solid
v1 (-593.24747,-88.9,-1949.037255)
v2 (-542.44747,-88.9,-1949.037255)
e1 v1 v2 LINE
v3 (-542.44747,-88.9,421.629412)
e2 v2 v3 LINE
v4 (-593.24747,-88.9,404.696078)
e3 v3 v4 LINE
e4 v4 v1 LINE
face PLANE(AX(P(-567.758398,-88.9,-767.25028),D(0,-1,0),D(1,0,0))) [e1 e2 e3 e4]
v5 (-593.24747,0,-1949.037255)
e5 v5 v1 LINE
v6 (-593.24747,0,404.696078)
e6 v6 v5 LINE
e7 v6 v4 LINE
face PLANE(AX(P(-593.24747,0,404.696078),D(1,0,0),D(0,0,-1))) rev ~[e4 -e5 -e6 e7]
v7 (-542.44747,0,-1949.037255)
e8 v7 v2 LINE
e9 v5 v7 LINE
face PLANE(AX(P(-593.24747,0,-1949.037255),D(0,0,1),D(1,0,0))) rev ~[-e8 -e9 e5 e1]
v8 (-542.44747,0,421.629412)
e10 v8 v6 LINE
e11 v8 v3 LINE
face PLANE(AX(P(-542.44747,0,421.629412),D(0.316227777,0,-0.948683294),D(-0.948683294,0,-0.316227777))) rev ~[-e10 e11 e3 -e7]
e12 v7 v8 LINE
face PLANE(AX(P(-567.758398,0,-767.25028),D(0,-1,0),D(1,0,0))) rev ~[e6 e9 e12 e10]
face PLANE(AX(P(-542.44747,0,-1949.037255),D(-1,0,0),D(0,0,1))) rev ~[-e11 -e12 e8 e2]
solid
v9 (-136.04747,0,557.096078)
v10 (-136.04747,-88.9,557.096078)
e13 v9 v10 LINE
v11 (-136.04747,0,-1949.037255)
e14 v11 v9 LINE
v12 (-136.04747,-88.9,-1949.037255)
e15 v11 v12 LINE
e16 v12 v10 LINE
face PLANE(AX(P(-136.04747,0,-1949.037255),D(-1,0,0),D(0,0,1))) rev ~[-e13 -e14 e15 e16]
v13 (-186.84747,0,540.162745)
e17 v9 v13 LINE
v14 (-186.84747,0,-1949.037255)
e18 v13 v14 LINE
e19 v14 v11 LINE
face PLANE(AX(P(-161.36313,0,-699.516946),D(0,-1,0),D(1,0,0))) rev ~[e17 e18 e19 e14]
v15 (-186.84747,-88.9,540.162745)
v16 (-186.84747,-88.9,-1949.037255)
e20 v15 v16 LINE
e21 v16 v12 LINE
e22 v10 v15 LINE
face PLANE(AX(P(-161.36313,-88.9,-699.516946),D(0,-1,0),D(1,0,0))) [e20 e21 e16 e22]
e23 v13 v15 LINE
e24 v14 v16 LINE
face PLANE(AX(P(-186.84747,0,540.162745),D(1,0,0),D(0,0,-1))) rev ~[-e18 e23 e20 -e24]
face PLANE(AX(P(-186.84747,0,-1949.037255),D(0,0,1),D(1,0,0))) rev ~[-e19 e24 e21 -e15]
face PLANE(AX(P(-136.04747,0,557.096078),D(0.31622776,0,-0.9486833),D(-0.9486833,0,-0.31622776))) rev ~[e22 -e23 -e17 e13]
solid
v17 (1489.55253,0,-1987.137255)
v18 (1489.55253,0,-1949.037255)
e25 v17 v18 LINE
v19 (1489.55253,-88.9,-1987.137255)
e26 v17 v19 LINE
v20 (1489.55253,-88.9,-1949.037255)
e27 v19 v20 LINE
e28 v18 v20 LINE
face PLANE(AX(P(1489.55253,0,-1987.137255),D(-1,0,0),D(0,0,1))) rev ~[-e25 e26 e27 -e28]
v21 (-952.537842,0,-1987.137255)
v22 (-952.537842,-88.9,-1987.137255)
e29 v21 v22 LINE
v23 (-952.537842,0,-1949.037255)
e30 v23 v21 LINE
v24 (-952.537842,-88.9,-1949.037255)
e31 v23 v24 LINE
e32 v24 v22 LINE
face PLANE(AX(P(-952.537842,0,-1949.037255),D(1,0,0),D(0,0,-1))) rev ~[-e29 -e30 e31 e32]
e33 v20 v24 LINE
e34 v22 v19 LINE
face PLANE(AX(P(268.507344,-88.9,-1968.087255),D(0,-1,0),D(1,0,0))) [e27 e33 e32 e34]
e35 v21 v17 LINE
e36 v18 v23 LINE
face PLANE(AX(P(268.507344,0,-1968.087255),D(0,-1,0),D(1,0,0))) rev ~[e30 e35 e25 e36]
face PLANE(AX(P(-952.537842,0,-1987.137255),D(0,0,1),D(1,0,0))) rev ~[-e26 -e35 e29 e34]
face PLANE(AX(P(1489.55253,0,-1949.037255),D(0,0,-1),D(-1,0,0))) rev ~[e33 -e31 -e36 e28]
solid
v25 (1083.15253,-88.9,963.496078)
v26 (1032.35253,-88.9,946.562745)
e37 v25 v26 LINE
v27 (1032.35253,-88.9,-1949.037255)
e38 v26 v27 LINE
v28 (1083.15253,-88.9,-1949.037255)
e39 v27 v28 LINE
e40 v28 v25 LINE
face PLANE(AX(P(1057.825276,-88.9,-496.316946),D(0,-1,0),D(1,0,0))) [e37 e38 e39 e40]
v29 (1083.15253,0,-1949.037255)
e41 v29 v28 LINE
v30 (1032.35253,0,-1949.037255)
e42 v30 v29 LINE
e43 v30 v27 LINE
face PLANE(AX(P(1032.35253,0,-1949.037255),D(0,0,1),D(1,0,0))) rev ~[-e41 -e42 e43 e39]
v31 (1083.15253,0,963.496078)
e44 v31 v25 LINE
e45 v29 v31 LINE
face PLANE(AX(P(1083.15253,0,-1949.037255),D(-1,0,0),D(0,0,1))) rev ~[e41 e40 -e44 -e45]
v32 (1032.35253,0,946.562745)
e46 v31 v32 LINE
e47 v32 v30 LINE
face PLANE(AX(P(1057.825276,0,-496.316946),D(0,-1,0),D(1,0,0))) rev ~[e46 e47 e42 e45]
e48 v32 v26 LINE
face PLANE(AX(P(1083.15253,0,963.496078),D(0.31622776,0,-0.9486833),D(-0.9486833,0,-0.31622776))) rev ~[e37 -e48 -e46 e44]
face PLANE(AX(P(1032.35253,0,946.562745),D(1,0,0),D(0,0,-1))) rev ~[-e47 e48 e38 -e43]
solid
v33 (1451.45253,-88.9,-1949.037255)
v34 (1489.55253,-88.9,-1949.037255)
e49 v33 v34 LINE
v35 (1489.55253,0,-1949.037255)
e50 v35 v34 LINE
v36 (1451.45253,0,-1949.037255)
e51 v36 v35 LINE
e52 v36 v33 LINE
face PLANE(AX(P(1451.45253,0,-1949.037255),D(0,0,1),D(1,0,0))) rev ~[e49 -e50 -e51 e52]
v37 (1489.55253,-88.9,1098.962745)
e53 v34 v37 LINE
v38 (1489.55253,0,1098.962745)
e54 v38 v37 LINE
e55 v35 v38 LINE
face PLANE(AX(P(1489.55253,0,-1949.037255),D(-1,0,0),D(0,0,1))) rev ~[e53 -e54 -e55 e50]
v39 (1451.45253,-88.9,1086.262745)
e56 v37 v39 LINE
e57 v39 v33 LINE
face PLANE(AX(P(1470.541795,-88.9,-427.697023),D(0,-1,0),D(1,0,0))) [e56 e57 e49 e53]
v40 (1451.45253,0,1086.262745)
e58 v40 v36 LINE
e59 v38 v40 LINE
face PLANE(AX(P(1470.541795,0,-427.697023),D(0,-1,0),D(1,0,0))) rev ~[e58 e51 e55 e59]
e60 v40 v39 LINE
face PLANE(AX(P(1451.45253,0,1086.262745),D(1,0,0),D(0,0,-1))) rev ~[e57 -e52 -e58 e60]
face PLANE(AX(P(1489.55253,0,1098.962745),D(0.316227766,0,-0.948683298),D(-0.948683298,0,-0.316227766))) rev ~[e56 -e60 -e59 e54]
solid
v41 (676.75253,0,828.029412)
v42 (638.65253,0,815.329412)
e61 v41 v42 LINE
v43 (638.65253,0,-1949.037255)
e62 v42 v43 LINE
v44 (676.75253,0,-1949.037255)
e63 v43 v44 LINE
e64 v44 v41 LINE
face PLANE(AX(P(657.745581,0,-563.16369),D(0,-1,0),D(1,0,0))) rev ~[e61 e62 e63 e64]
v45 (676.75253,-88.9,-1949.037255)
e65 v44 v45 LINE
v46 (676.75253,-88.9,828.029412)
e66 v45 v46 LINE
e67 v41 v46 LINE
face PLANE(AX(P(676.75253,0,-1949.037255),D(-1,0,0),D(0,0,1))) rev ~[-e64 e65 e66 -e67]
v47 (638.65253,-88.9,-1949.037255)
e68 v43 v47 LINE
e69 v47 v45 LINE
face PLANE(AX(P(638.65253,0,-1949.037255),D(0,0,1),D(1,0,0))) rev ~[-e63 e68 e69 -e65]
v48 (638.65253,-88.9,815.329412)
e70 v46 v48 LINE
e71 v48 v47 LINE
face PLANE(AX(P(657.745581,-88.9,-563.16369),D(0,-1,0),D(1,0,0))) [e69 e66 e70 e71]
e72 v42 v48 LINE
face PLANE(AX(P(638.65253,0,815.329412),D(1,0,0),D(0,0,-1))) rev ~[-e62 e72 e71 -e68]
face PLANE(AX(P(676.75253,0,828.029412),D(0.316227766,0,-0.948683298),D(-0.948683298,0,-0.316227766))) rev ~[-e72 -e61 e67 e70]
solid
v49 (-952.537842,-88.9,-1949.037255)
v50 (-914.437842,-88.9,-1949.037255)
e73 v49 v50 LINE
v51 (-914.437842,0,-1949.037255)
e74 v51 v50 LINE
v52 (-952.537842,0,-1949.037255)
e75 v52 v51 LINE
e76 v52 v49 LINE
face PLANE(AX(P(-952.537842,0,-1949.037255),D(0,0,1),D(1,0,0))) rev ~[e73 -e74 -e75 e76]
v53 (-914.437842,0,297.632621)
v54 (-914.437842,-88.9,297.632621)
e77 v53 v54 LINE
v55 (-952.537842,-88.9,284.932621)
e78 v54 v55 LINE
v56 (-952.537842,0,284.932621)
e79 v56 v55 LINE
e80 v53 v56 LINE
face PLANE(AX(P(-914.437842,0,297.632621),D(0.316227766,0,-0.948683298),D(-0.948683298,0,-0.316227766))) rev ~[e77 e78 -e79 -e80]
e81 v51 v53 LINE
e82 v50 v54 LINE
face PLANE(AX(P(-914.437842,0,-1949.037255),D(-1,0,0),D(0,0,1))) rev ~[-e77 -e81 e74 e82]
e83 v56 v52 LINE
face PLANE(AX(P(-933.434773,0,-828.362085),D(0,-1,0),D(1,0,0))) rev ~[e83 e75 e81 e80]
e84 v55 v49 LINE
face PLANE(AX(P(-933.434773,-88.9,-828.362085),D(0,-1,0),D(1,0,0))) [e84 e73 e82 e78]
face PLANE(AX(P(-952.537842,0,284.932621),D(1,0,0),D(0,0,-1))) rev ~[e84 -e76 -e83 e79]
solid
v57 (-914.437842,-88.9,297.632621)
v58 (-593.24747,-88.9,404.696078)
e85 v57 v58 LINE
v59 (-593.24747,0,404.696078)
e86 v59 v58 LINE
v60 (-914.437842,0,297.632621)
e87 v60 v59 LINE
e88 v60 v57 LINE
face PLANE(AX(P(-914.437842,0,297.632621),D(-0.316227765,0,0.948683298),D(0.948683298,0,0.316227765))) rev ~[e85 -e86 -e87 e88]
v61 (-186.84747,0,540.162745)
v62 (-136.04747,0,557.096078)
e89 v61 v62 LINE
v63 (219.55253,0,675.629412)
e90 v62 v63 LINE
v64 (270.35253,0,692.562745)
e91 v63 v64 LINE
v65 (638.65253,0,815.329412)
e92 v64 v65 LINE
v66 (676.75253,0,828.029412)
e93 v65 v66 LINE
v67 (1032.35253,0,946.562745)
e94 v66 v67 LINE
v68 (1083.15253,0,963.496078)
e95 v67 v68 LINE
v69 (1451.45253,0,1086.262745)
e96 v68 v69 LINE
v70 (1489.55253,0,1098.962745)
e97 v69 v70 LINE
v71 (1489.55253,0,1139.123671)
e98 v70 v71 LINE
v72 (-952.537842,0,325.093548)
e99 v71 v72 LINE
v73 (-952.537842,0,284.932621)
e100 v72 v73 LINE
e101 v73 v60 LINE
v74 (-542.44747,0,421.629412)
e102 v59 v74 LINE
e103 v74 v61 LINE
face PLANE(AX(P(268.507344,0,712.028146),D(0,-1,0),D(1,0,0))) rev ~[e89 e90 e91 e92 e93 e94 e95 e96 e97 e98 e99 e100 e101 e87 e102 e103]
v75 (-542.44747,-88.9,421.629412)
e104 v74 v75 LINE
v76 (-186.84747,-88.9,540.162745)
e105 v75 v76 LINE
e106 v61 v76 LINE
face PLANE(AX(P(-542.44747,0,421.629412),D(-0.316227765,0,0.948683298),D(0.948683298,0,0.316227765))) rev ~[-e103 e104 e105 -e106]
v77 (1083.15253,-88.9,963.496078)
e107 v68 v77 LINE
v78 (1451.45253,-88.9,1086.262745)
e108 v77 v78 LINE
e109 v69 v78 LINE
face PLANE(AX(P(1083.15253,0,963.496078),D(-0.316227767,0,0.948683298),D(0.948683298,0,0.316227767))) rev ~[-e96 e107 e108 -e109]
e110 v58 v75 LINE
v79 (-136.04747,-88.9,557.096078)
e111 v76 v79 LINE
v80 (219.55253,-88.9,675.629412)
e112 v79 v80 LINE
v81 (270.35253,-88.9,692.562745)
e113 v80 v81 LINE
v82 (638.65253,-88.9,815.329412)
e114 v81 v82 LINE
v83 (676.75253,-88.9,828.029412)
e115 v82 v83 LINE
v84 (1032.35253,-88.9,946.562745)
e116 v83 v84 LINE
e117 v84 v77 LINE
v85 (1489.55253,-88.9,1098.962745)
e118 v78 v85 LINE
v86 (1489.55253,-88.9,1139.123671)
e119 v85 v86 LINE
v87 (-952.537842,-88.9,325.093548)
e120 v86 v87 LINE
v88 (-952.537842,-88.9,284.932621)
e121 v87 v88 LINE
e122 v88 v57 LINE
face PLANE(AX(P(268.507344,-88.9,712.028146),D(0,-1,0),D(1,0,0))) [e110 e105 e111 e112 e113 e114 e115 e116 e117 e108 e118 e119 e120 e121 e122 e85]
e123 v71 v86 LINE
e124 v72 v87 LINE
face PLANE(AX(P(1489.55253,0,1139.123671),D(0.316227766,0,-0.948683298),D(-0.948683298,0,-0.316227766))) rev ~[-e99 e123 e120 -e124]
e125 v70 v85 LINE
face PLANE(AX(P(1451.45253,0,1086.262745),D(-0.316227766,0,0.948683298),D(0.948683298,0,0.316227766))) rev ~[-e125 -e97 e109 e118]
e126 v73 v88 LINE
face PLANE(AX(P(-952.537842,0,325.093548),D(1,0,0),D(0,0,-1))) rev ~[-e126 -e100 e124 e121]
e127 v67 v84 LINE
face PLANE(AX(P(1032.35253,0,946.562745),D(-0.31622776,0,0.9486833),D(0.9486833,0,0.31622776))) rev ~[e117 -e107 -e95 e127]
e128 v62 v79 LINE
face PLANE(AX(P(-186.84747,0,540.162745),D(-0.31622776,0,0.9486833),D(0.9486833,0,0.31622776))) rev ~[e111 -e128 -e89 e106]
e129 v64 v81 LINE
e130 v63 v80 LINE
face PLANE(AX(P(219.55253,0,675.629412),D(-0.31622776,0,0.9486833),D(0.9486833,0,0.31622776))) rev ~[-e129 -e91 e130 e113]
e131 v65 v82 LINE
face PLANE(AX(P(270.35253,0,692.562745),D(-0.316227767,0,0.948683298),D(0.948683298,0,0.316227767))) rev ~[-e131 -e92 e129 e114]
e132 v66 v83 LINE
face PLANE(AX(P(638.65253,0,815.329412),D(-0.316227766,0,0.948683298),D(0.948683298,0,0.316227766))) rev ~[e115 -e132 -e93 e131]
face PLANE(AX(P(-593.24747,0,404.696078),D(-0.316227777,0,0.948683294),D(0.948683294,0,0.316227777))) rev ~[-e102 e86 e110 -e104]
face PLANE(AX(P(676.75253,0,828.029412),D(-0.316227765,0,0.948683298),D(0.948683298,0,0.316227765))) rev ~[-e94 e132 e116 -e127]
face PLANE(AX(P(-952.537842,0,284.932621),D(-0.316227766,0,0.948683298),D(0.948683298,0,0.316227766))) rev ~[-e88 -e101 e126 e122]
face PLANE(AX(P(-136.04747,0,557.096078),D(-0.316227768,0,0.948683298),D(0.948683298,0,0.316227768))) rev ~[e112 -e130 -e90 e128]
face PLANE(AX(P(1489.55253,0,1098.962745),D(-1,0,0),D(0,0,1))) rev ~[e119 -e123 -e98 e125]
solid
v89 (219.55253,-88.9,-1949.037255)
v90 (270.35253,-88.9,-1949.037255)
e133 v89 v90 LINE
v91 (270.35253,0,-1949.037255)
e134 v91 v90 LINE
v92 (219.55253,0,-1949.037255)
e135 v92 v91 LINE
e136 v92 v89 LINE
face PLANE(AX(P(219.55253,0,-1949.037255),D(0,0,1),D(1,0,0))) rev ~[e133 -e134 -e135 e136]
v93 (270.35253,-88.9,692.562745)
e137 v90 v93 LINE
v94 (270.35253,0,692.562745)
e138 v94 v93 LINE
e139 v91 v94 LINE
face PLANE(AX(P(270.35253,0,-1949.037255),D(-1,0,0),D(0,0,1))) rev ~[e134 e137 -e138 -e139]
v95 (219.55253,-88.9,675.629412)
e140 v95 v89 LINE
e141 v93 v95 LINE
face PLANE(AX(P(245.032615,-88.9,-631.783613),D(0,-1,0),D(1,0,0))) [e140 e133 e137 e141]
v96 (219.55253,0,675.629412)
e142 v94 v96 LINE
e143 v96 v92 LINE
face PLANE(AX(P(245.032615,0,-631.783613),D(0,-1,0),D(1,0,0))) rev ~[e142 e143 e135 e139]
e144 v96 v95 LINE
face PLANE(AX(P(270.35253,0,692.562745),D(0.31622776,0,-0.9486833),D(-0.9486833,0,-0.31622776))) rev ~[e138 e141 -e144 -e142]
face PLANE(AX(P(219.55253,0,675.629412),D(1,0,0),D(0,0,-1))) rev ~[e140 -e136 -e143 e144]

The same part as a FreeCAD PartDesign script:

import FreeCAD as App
import Part
import Sketcher

V = App.Vector
Q = App.Units.Quantity


def add_polygon(sketch, points):
    """Adds a closed chain of lines whose ends are joined by coincident constraints."""
    first, n = sketch.GeometryCount, len(points)
    for a, b in zip(points, points[1:] + points[:1]):
        sketch.addGeometry(Part.LineSegment(App.Vector(*a, 0), App.Vector(*b, 0)), False)
    for i in range(n):
        sketch.addConstraint(Sketcher.Constraint("Coincident", first + i, 2, first + (i + 1) % n, 1))

doc = App.newDocument("Part")
params = doc.addObject("Spreadsheet::Sheet", "Params")
for row, (alias, value) in enumerate([
    ("sketch1_width", "2 in"),
    ("sketch1_height", "120 in"),
    ("sketch1_height2", "98 in"),
    ("sketch1_height3", "104 in"),
    ("sketch1_height4", "114 in"),
    ("pad1_length", "3.5 in"),
    ("sketch2_height", "1.5 in"),
    ("pad2_length", "3.5 in"),
], start=1):
    params.set(f"A{row}", alias)
    params.set(f"B{row}", "=" + value)
    params.setAlias(f"B{row}", alias)

body = doc.addObject("PartDesign::Body", "Body")
body.AllowCompound = True

# Sketch on XZ plane
sketch1 = doc.addObject("Sketcher::SketchObject", "Sketch")
body.addObject(sketch1)
sketch1.AttachmentSupport = (doc.XZ_Plane, [""])
sketch1.MapMode = "FlatFace"
add_polygon(sketch1, [(1490, -1949), (1490, 1099), (1451, 1086), (1451, -1949)])  # lines 0-3
add_polygon(sketch1, [(-914, 298), (-953, 285), (-953, -1949), (-914, -1949)])  # lines 4-7
add_polygon(sketch1, [(-542, 422), (-593, 405), (-593, -1949), (-542, -1949)])  # lines 8-11
add_polygon(sketch1, [(-136, 557), (-187, 540), (-187, -1949), (-136, -1949)])  # lines 12-15
add_polygon(sketch1, [(270, 693), (220, 676), (220, -1949), (270, -1949)])  # lines 16-19
add_polygon(sketch1, [(677, -1949), (677, 828), (639, 815), (639, -1949)])  # lines 20-23
add_polygon(sketch1, [(1083, -1949), (1083, 963), (1032, 947), (1032, -1949)])  # lines 24-27
sketch1.addConstraint(Sketcher.Constraint("Vertical", 0))
sketch1.addConstraint(Sketcher.Constraint("Vertical", 2))
sketch1.addConstraint(Sketcher.Constraint("Horizontal", 3))
sketch1.addConstraint(Sketcher.Constraint("Vertical", 5))
sketch1.addConstraint(Sketcher.Constraint("Horizontal", 6))
sketch1.addConstraint(Sketcher.Constraint("Vertical", 7))
sketch1.addConstraint(Sketcher.Constraint("Vertical", 9))
sketch1.addConstraint(Sketcher.Constraint("Horizontal", 10))
sketch1.addConstraint(Sketcher.Constraint("Vertical", 11))
sketch1.addConstraint(Sketcher.Constraint("Vertical", 13))
sketch1.addConstraint(Sketcher.Constraint("Horizontal", 14))
sketch1.addConstraint(Sketcher.Constraint("Vertical", 15))
sketch1.addConstraint(Sketcher.Constraint("Vertical", 17))
sketch1.addConstraint(Sketcher.Constraint("Horizontal", 18))
sketch1.addConstraint(Sketcher.Constraint("Vertical", 19))
sketch1.addConstraint(Sketcher.Constraint("Vertical", 20))
sketch1.addConstraint(Sketcher.Constraint("Vertical", 22))
sketch1.addConstraint(Sketcher.Constraint("Horizontal", 23))
sketch1.addConstraint(Sketcher.Constraint("Vertical", 24))
sketch1.addConstraint(Sketcher.Constraint("Vertical", 26))
sketch1.addConstraint(Sketcher.Constraint("Horizontal", 27))
sketch1.addConstraint(Sketcher.Constraint("Parallel", 1, 4))
sketch1.addConstraint(Sketcher.Constraint("Parallel", 4, 8))
sketch1.addConstraint(Sketcher.Constraint("Parallel", 8, 12))
sketch1.addConstraint(Sketcher.Constraint("Parallel", 12, 16))
sketch1.addConstraint(Sketcher.Constraint("Parallel", 16, 21))
sketch1.addConstraint(Sketcher.Constraint("Parallel", 21, 25))
sketch1.addConstraint(Sketcher.Constraint("Horizontal", 3, 2, 5, 2))
sketch1.addConstraint(Sketcher.Constraint("Horizontal", 6, 2, 9, 2))
sketch1.addConstraint(Sketcher.Constraint("Horizontal", 10, 2, 13, 2))
sketch1.addConstraint(Sketcher.Constraint("Horizontal", 14, 2, 17, 2))
sketch1.addConstraint(Sketcher.Constraint("Horizontal", 18, 2, 22, 2))
sketch1.addConstraint(Sketcher.Constraint("Horizontal", 23, 2, 26, 2))
sketch1.addConstraint(Sketcher.Constraint("Equal", 3, 6))
sketch1.addConstraint(Sketcher.Constraint("Equal", 10, 14))
sketch1.addConstraint(Sketcher.Constraint("Equal", 14, 18))
sketch1.addConstraint(Sketcher.Constraint("Equal", 6, 23))
sketch1.addConstraint(Sketcher.Constraint("Equal", 18, 27))
sketch1.addConstraint(Sketcher.Constraint("DistanceX", 10, 1, 10, 2, Q("2 in")))
sketch1.addConstraint(Sketcher.Constraint("DistanceY", 0, 1, 0, 2, Q("120 in")))
sketch1.addConstraint(Sketcher.Constraint("DistanceY", 13, 2, 13, 1, Q("98 in")))
sketch1.addConstraint(Sketcher.Constraint("DistanceY", 19, 1, 19, 2, Q("104 in")))
sketch1.addConstraint(Sketcher.Constraint("DistanceY", 26, 2, 26, 1, Q("114 in")))
sketch1.addConstraint(Sketcher.Constraint("DistanceX", 3, 1, 3, 2, Q("1.5 in")))
sketch1.addConstraint(Sketcher.Constraint("DistanceY", 2, 2, 2, 1, Q("119.5 in")))
sketch1.addConstraint(Sketcher.Constraint("DistanceX", 8, 2, 0, 2, Q("82 in")))
sketch1.addConstraint(Sketcher.Constraint("DistanceX", 11, 2, 12, 2, Q("14 in")))
sketch1.addConstraint(Sketcher.Constraint("DistanceY", 8, 2, 15, 2, Q("6 in")))
sketch1.addConstraint(Sketcher.Constraint("DistanceX", 15, 2, 16, 2, Q("14 in")))
sketch1.addConstraint(Sketcher.Constraint("DistanceX", 19, 2, 20, 2, Q("16 in")))
sketch1.addConstraint(Sketcher.Constraint("DistanceY", 16, 2, 20, 2, Q("6 in")))
sketch1.addConstraint(Sketcher.Constraint("DistanceX", 20, 2, 24, 2, Q("16 in")))
sketch1.addConstraint(Sketcher.Constraint("DistanceY", 5, 2, 5, 1, Q("2233.969876 mm")))
sketch1.addConstraint(Sketcher.Constraint("DistanceX", -1, 1, 0, 2, Q("1489.55253 mm")))
sketch1.addConstraint(Sketcher.Constraint("DistanceX", 4, 2, -1, 1, Q("952.537842 mm")))
sketch1.addConstraint(Sketcher.Constraint("DistanceY", -1, 1, 4, 2, Q("284.932621 mm")))
sketch1.setExpression("Constraints[66]", "Params.sketch1_width")
sketch1.setExpression("Constraints[67]", "Params.sketch1_height")
sketch1.setExpression("Constraints[68]", "Params.sketch1_height2")
sketch1.setExpression("Constraints[69]", "Params.sketch1_height3")
sketch1.setExpression("Constraints[70]", "Params.sketch1_height4")
pad1 = doc.addObject("PartDesign::Pad", "Pad")
body.addObject(pad1)
pad1.Profile = sketch1
pad1.setExpression("Length", "Params.pad1_length")
body2 = doc.addObject("PartDesign::Body", "Body001")
body2.AllowCompound = True

# Sketch on XZ plane
sketch2 = doc.addObject("Sketcher::SketchObject", "Sketch001")
body2.addObject(sketch2)
sketch2.AttachmentSupport = (doc.getObject("XZ_Plane001"), [""])
sketch2.MapMode = "FlatFace"
add_polygon(sketch2, [(1490, 1139), (-953, 325), (-953, 285), (-914, 298), (-593, 405), (-542, 422), (-187, 540), (-136, 557), (220, 676), (270, 693), (639, 815), (677, 828), (1032, 947), (1083, 963), (1451, 1086), (1490, 1099)])  # lines 0-15
add_polygon(sketch2, [(-953, -1949), (-953, -1987), (1490, -1987), (1490, -1949)])  # lines 16-19
sketch2.addConstraint(Sketcher.Constraint("Vertical", 1))
sketch2.addConstraint(Sketcher.Constraint("Vertical", 15))
sketch2.addConstraint(Sketcher.Constraint("Vertical", 16))
sketch2.addConstraint(Sketcher.Constraint("Horizontal", 17))
sketch2.addConstraint(Sketcher.Constraint("Vertical", 18))
sketch2.addConstraint(Sketcher.Constraint("Horizontal", 19))
sketch2.addConstraint(Sketcher.Constraint("Parallel", 0, 2))
sketch2.addConstraint(Sketcher.Constraint("Parallel", 2, 3))
sketch2.addConstraint(Sketcher.Constraint("Parallel", 3, 4))
sketch2.addConstraint(Sketcher.Constraint("Parallel", 4, 5))
sketch2.addConstraint(Sketcher.Constraint("Parallel", 5, 6))
sketch2.addConstraint(Sketcher.Constraint("Parallel", 6, 7))
sketch2.addConstraint(Sketcher.Constraint("Parallel", 7, 8))
sketch2.addConstraint(Sketcher.Constraint("Parallel", 8, 9))
sketch2.addConstraint(Sketcher.Constraint("Parallel", 9, 10))
sketch2.addConstraint(Sketcher.Constraint("Parallel", 10, 11))
sketch2.addConstraint(Sketcher.Constraint("Parallel", 11, 12))
sketch2.addConstraint(Sketcher.Constraint("Parallel", 12, 13))
sketch2.addConstraint(Sketcher.Constraint("Parallel", 13, 14))
sketch2.addConstraint(Sketcher.Constraint("Vertical", 1, 2, 16, 2))
sketch2.addConstraint(Sketcher.Constraint("Vertical", 15, 2, 17, 2))
sketch2.addConstraint(Sketcher.Constraint("Equal", 4, 6))
sketch2.addConstraint(Sketcher.Constraint("Equal", 5, 7))
sketch2.addConstraint(Sketcher.Constraint("Equal", 6, 8))
sketch2.addConstraint(Sketcher.Constraint("Equal", 2, 10))
sketch2.addConstraint(Sketcher.Constraint("Equal", 7, 11))
sketch2.addConstraint(Sketcher.Constraint("Equal", 8, 12))
sketch2.addConstraint(Sketcher.Constraint("Equal", 9, 13))
sketch2.addConstraint(Sketcher.Constraint("Equal", 10, 14))
sketch2.addConstraint(Sketcher.Constraint("DistanceY", 16, 2, 16, 1, Q("1.5 in")))
sketch2.addConstraint(Sketcher.Constraint("DistanceX", 3, 2, 4, 2, Q("2 in")))
sketch2.addConstraint(Sketcher.Constraint("DistanceX", 4, 2, 5, 2, Q("14 in")))
sketch2.addConstraint(Sketcher.Constraint("DistanceY", 3, 2, 6, 2, Q("6 in")))
sketch2.addConstraint(Sketcher.Constraint("DistanceX", 8, 2, 10, 2, Q("16 in")))
sketch2.addConstraint(Sketcher.Constraint("DistanceY", 18, 2, 8, 2, Q("104 in")))
sketch2.addConstraint(Sketcher.Constraint("DistanceX", 1, 2, 2, 2, Q("1.5 in")))
sketch2.addConstraint(Sketcher.Constraint("DistanceX", 17, 1, 17, 2, Q("2442.090372 mm")))
sketch2.addConstraint(Sketcher.Constraint("DistanceY", 1, 2, 1, 1, Q("40.160927 mm")))
sketch2.addConstraint(Sketcher.Constraint("DistanceX", 0, 2, -1, 1, Q("952.537842 mm")))
sketch2.addConstraint(Sketcher.Constraint("DistanceY", -1, 1, 0, 2, Q("325.093548 mm")))
sketch2.setExpression("Constraints[49]", "Params.sketch2_height")
pad2 = doc.addObject("PartDesign::Pad", "Pad001")
body2.addObject(pad2)
pad2.Profile = sketch2
pad2.setExpression("Length", "Params.pad2_length")

doc.recompute()
